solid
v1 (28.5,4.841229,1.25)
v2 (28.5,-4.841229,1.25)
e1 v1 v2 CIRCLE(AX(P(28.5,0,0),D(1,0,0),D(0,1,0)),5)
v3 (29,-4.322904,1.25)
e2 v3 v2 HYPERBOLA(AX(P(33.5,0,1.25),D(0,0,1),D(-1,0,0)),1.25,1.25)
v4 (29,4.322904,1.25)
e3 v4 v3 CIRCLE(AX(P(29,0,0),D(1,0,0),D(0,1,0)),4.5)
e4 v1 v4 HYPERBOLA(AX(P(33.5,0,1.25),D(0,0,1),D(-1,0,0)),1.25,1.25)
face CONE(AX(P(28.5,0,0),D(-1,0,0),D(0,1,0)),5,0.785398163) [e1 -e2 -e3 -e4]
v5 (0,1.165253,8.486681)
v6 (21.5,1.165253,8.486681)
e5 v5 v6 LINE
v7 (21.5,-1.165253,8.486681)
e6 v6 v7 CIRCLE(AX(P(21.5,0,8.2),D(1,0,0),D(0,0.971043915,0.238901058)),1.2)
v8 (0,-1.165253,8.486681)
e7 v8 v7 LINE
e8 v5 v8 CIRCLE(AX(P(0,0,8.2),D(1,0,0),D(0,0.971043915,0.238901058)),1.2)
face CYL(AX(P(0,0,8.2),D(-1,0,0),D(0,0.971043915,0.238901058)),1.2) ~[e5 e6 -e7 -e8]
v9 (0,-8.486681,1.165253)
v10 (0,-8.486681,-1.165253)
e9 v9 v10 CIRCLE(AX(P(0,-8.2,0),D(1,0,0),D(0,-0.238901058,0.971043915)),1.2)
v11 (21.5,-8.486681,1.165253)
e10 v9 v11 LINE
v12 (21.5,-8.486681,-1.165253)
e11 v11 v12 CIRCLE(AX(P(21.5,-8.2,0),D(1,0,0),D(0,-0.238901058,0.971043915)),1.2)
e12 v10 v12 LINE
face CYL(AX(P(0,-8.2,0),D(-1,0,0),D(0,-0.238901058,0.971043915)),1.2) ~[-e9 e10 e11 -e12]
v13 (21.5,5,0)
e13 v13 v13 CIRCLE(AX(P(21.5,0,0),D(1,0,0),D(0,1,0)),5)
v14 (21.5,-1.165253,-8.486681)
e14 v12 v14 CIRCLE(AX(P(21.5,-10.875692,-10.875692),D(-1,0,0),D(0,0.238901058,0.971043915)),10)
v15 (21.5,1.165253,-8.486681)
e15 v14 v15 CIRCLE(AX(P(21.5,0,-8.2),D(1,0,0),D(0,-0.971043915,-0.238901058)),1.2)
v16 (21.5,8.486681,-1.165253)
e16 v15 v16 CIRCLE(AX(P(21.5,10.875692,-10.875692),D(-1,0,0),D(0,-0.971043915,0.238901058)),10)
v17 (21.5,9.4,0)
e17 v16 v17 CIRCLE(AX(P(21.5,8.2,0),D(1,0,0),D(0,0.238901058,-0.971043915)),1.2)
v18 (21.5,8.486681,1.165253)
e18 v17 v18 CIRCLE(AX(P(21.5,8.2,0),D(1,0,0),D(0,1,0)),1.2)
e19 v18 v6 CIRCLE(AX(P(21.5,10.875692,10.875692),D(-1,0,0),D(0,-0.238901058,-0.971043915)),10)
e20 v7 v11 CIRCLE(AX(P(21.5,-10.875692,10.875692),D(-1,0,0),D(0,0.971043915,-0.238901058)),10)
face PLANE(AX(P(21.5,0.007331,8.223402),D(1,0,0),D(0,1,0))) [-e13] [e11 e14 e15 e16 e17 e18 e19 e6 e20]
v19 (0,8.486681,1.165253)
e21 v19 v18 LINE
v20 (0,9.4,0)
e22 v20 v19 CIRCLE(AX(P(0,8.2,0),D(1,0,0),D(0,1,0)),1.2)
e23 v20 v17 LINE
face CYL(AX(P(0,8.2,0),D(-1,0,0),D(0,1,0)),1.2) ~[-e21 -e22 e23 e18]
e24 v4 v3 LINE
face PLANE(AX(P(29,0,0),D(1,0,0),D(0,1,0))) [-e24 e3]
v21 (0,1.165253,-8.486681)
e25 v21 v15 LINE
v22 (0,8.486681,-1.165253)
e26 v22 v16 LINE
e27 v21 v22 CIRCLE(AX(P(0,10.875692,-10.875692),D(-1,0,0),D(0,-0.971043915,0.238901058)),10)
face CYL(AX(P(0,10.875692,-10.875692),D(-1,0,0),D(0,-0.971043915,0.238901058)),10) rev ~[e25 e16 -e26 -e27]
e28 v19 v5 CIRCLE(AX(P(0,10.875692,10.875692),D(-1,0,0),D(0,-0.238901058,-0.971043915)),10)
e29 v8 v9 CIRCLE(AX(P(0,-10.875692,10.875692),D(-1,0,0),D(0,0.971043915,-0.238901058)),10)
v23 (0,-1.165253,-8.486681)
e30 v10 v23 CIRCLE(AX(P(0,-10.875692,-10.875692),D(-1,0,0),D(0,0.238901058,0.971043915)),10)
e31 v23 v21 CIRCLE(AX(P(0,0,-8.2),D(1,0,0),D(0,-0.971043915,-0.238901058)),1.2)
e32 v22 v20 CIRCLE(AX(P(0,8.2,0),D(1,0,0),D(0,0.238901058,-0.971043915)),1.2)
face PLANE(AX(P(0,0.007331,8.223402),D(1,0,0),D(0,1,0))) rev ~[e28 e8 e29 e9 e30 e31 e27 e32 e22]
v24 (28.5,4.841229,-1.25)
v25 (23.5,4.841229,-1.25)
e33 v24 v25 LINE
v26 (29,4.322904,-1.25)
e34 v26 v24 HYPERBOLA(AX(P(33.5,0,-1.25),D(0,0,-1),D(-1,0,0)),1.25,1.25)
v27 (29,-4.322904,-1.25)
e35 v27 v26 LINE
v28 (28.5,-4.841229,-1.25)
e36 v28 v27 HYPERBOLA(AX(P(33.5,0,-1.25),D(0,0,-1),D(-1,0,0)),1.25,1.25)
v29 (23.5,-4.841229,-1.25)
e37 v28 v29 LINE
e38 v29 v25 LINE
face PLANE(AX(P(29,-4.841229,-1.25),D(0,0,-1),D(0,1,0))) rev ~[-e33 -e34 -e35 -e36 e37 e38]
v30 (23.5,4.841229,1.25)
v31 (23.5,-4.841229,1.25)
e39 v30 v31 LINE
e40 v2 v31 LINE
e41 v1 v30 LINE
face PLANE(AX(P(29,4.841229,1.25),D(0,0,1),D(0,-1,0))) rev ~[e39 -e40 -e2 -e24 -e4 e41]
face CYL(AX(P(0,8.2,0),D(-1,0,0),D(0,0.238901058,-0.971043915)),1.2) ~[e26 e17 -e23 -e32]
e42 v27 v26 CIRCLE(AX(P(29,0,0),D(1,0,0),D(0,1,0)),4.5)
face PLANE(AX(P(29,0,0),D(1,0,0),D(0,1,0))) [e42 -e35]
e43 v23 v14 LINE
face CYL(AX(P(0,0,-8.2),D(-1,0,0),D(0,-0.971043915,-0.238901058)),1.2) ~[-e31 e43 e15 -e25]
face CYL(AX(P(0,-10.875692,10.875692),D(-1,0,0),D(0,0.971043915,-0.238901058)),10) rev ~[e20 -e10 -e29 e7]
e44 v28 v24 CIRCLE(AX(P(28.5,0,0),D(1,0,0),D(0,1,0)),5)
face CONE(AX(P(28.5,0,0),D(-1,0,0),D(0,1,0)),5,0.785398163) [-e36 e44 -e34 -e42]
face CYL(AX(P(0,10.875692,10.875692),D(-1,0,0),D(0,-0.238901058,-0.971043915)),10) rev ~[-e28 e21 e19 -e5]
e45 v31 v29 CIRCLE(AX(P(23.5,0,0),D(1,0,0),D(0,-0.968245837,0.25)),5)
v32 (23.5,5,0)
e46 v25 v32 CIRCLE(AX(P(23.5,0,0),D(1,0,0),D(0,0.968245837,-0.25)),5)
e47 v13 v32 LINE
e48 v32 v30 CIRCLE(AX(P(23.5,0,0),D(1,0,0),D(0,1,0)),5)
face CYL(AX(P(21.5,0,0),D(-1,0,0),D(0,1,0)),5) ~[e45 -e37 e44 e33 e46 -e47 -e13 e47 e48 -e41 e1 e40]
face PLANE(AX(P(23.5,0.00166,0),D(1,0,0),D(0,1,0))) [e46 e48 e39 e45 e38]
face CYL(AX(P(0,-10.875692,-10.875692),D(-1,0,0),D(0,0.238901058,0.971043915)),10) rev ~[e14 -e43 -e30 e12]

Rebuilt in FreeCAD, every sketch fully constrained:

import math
import FreeCAD as App
import Part
import Sketcher

V = App.Vector
Q = App.Units.Quantity


def edges_at(feature, points):
    """Names of the edges that pass closest to the given points."""
    edges = feature.Shape.Edges
    near = lambda p: min(range(len(edges)), key=lambda i: edges[i].distToShape(Part.Vertex(*p))[0])
    return sorted({f"Edge{near(p) + 1}" for p in points})

doc = App.newDocument("Part")
body = doc.addObject("PartDesign::Body", "Body")

sketch1 = doc.addObject("Sketcher::SketchObject", "Sketch")
body.addObject(sketch1)
sketch1.AttachmentSupport = (doc.YZ_Plane, [""])
sketch1.MapMode = "FlatFace"
sketch1.addGeometry([
    Part.ArcOfCircle(Part.Circle(V(0, 8.2, 0), V(0, 0, 1), 1.2), math.radians(13.821689), math.radians(166.178311)),
    Part.ArcOfCircle(Part.Circle(V(-10.875692, 10.875692, 0), V(0, 0, 1), 10), math.radians(-76.178311), math.radians(-13.821689)),
    Part.ArcOfCircle(Part.Circle(V(-8.2, 0, 0), V(0, 0, 1), 1.2), math.radians(103.821689), math.radians(256.178311)),
    Part.ArcOfCircle(Part.Circle(V(-10.875692, -10.875692, 0), V(0, 0, 1), 10), math.radians(13.821689), math.radians(76.178311)),
    Part.ArcOfCircle(Part.Circle(V(0, -8.2, 0), V(0, 0, 1), 1.2), math.radians(-166.178311), math.radians(-13.821689)),
    Part.ArcOfCircle(Part.Circle(V(10.875692, -10.875692, 0), V(0, 0, 1), 10), math.radians(103.821689), math.radians(166.178311)),
    Part.ArcOfCircle(Part.Circle(V(8.2, 0, 0), V(0, 0, 1), 1.2), math.radians(-76.178311), math.radians(0)),
    Part.ArcOfCircle(Part.Circle(V(8.2, 0, 0), V(0, 0, 1), 1.2), math.radians(0), math.radians(76.178311)),
    Part.ArcOfCircle(Part.Circle(V(10.875692, 10.875692, 0), V(0, 0, 1), 10), math.radians(-166.178311), math.radians(-103.821689)),
], False)
sketch1.addConstraint([
    Sketcher.Constraint("Tangent", 0, 2, 1, 2),
    Sketcher.Constraint("Tangent", 1, 1, 2, 1),
    Sketcher.Constraint("Tangent", 2, 2, 3, 2),
    Sketcher.Constraint("Tangent", 3, 1, 4, 1),
    Sketcher.Constraint("Tangent", 4, 2, 5, 2),
    Sketcher.Constraint("Tangent", 5, 1, 6, 1),
    Sketcher.Constraint("Tangent", 6, 2, 7, 1),
    Sketcher.Constraint("Tangent", 7, 2, 8, 2),
    Sketcher.Constraint("Tangent", 8, 1, 0, 1),
    Sketcher.Constraint("Equal", 0, 2),
    Sketcher.Constraint("Equal", 1, 3),
    Sketcher.Constraint("Equal", 2, 4),
    Sketcher.Constraint("Equal", 3, 5),
    Sketcher.Constraint("Equal", 4, 6),
    Sketcher.Constraint("Equal", 6, 7),
    Sketcher.Constraint("Equal", 5, 8),
    Sketcher.Constraint("Symmetric", 0, 3, 4, 3, -1, 1),
    Sketcher.Constraint("Symmetric", 2, 3, 6, 3, -1, 1),
    Sketcher.Constraint("Symmetric", 3, 3, 5, 3, -2),
    Sketcher.Constraint("PointOnObject", 6, 2, -1),
    Sketcher.Constraint("Radius", 1, Q("10 mm")),
    Sketcher.Constraint("Radius", 0, Q("1.2 mm")),
    Sketcher.Constraint("DistanceY", -1, 1, 0, 3, Q("8.2 mm")),
    Sketcher.Constraint("DistanceX", 2, 3, -1, 1, Q("8.2 mm")),
])
pad1 = doc.addObject("PartDesign::Pad", "Pad")
body.addObject(pad1)
pad1.Profile = sketch1
pad1.Length = 21.5

sketch2 = doc.addObject("Sketcher::SketchObject", "Sketch001")
body.addObject(sketch2)
sketch2.AttachmentSupport = (doc.YZ_Plane, [""])
sketch2.MapMode = "FlatFace"
sketch2.AttachmentOffset = App.Placement(V(0, 0, 21.5), App.Rotation())
sketch2.addGeometry(Part.Circle(V(0, 0, 0), V(0, 0, 1), 5), False)
sketch2.addConstraint([
    Sketcher.Constraint("Coincident", 0, 3, -1, 1),
    Sketcher.Constraint("Diameter", 0, Q("10 mm")),
])
pad2 = doc.addObject("PartDesign::Pad", "Pad001")
body.addObject(pad2)
pad2.Profile = sketch2
pad2.Length = 7.5
doc.recompute()

chamfer = doc.addObject("PartDesign::Chamfer", "Chamfer")
body.addObject(chamfer)
chamfer.Base = (pad2, edges_at(pad2, [(29, -5, 0)]))
chamfer.Size = 0.5

sketch3 = doc.addObject("Sketcher::SketchObject", "Sketch002")
body.addObject(sketch3)
sketch3.AttachmentSupport = (doc.YZ_Plane, [""])
sketch3.MapMode = "FlatFace"
sketch3.AttachmentOffset = App.Placement(V(0, 0, 29), App.Rotation())
sketch3.addGeometry([
    Part.ArcOfCircle(Part.Circle(V(0, 0, 0), V(0, 0, 1), 5), math.radians(165.522488), math.radians(194.477512)),
    Part.LineSegment(V(-4.841229, -1.25, 0), V(4.841229, -1.25, 0)),
    Part.ArcOfCircle(Part.Circle(V(0, 0, 0), V(0, 0, 1), 5), math.radians(-14.477512), math.radians(0)),
    Part.ArcOfCircle(Part.Circle(V(0, 0, 0), V(0, 0, 1), 5), math.radians(0), math.radians(14.477512)),
    Part.LineSegment(V(4.841229, 1.25, 0), V(-4.841229, 1.25, 0)),
], False)
sketch3.addConstraint([
    Sketcher.Constraint("Coincident", 0, 2, 1, 1),
    Sketcher.Constraint("Coincident", 1, 2, 2, 1),
    Sketcher.Constraint("Tangent", 2, 2, 3, 1),
    Sketcher.Constraint("Coincident", 3, 2, 4, 1),
    Sketcher.Constraint("Coincident", 4, 2, 0, 1),
    Sketcher.Constraint("Horizontal", 1),
    Sketcher.Constraint("Horizontal", 4),
    Sketcher.Constraint("Coincident", 0, 3, -1, 1),
    Sketcher.Constraint("Coincident", 2, 3, -1, 1),
    Sketcher.Constraint("Equal", 0, 2),
    Sketcher.Constraint("Equal", 2, 3),
    Sketcher.Constraint("PointOnObject", 2, 2, -1),
    Sketcher.Constraint("Vertical", 1, 2, 3, 2),
    Sketcher.Constraint("Radius", 0, Q("5 mm")),
    Sketcher.Constraint("DistanceY", 1, 2, 3, 2, Q("2.5 mm")),
])
pocket1 = doc.addObject("PartDesign::Pocket", "Pocket")
body.addObject(pocket1)
pocket1.Profile = sketch3
pocket1.Length = 5.5

doc.recompute()
